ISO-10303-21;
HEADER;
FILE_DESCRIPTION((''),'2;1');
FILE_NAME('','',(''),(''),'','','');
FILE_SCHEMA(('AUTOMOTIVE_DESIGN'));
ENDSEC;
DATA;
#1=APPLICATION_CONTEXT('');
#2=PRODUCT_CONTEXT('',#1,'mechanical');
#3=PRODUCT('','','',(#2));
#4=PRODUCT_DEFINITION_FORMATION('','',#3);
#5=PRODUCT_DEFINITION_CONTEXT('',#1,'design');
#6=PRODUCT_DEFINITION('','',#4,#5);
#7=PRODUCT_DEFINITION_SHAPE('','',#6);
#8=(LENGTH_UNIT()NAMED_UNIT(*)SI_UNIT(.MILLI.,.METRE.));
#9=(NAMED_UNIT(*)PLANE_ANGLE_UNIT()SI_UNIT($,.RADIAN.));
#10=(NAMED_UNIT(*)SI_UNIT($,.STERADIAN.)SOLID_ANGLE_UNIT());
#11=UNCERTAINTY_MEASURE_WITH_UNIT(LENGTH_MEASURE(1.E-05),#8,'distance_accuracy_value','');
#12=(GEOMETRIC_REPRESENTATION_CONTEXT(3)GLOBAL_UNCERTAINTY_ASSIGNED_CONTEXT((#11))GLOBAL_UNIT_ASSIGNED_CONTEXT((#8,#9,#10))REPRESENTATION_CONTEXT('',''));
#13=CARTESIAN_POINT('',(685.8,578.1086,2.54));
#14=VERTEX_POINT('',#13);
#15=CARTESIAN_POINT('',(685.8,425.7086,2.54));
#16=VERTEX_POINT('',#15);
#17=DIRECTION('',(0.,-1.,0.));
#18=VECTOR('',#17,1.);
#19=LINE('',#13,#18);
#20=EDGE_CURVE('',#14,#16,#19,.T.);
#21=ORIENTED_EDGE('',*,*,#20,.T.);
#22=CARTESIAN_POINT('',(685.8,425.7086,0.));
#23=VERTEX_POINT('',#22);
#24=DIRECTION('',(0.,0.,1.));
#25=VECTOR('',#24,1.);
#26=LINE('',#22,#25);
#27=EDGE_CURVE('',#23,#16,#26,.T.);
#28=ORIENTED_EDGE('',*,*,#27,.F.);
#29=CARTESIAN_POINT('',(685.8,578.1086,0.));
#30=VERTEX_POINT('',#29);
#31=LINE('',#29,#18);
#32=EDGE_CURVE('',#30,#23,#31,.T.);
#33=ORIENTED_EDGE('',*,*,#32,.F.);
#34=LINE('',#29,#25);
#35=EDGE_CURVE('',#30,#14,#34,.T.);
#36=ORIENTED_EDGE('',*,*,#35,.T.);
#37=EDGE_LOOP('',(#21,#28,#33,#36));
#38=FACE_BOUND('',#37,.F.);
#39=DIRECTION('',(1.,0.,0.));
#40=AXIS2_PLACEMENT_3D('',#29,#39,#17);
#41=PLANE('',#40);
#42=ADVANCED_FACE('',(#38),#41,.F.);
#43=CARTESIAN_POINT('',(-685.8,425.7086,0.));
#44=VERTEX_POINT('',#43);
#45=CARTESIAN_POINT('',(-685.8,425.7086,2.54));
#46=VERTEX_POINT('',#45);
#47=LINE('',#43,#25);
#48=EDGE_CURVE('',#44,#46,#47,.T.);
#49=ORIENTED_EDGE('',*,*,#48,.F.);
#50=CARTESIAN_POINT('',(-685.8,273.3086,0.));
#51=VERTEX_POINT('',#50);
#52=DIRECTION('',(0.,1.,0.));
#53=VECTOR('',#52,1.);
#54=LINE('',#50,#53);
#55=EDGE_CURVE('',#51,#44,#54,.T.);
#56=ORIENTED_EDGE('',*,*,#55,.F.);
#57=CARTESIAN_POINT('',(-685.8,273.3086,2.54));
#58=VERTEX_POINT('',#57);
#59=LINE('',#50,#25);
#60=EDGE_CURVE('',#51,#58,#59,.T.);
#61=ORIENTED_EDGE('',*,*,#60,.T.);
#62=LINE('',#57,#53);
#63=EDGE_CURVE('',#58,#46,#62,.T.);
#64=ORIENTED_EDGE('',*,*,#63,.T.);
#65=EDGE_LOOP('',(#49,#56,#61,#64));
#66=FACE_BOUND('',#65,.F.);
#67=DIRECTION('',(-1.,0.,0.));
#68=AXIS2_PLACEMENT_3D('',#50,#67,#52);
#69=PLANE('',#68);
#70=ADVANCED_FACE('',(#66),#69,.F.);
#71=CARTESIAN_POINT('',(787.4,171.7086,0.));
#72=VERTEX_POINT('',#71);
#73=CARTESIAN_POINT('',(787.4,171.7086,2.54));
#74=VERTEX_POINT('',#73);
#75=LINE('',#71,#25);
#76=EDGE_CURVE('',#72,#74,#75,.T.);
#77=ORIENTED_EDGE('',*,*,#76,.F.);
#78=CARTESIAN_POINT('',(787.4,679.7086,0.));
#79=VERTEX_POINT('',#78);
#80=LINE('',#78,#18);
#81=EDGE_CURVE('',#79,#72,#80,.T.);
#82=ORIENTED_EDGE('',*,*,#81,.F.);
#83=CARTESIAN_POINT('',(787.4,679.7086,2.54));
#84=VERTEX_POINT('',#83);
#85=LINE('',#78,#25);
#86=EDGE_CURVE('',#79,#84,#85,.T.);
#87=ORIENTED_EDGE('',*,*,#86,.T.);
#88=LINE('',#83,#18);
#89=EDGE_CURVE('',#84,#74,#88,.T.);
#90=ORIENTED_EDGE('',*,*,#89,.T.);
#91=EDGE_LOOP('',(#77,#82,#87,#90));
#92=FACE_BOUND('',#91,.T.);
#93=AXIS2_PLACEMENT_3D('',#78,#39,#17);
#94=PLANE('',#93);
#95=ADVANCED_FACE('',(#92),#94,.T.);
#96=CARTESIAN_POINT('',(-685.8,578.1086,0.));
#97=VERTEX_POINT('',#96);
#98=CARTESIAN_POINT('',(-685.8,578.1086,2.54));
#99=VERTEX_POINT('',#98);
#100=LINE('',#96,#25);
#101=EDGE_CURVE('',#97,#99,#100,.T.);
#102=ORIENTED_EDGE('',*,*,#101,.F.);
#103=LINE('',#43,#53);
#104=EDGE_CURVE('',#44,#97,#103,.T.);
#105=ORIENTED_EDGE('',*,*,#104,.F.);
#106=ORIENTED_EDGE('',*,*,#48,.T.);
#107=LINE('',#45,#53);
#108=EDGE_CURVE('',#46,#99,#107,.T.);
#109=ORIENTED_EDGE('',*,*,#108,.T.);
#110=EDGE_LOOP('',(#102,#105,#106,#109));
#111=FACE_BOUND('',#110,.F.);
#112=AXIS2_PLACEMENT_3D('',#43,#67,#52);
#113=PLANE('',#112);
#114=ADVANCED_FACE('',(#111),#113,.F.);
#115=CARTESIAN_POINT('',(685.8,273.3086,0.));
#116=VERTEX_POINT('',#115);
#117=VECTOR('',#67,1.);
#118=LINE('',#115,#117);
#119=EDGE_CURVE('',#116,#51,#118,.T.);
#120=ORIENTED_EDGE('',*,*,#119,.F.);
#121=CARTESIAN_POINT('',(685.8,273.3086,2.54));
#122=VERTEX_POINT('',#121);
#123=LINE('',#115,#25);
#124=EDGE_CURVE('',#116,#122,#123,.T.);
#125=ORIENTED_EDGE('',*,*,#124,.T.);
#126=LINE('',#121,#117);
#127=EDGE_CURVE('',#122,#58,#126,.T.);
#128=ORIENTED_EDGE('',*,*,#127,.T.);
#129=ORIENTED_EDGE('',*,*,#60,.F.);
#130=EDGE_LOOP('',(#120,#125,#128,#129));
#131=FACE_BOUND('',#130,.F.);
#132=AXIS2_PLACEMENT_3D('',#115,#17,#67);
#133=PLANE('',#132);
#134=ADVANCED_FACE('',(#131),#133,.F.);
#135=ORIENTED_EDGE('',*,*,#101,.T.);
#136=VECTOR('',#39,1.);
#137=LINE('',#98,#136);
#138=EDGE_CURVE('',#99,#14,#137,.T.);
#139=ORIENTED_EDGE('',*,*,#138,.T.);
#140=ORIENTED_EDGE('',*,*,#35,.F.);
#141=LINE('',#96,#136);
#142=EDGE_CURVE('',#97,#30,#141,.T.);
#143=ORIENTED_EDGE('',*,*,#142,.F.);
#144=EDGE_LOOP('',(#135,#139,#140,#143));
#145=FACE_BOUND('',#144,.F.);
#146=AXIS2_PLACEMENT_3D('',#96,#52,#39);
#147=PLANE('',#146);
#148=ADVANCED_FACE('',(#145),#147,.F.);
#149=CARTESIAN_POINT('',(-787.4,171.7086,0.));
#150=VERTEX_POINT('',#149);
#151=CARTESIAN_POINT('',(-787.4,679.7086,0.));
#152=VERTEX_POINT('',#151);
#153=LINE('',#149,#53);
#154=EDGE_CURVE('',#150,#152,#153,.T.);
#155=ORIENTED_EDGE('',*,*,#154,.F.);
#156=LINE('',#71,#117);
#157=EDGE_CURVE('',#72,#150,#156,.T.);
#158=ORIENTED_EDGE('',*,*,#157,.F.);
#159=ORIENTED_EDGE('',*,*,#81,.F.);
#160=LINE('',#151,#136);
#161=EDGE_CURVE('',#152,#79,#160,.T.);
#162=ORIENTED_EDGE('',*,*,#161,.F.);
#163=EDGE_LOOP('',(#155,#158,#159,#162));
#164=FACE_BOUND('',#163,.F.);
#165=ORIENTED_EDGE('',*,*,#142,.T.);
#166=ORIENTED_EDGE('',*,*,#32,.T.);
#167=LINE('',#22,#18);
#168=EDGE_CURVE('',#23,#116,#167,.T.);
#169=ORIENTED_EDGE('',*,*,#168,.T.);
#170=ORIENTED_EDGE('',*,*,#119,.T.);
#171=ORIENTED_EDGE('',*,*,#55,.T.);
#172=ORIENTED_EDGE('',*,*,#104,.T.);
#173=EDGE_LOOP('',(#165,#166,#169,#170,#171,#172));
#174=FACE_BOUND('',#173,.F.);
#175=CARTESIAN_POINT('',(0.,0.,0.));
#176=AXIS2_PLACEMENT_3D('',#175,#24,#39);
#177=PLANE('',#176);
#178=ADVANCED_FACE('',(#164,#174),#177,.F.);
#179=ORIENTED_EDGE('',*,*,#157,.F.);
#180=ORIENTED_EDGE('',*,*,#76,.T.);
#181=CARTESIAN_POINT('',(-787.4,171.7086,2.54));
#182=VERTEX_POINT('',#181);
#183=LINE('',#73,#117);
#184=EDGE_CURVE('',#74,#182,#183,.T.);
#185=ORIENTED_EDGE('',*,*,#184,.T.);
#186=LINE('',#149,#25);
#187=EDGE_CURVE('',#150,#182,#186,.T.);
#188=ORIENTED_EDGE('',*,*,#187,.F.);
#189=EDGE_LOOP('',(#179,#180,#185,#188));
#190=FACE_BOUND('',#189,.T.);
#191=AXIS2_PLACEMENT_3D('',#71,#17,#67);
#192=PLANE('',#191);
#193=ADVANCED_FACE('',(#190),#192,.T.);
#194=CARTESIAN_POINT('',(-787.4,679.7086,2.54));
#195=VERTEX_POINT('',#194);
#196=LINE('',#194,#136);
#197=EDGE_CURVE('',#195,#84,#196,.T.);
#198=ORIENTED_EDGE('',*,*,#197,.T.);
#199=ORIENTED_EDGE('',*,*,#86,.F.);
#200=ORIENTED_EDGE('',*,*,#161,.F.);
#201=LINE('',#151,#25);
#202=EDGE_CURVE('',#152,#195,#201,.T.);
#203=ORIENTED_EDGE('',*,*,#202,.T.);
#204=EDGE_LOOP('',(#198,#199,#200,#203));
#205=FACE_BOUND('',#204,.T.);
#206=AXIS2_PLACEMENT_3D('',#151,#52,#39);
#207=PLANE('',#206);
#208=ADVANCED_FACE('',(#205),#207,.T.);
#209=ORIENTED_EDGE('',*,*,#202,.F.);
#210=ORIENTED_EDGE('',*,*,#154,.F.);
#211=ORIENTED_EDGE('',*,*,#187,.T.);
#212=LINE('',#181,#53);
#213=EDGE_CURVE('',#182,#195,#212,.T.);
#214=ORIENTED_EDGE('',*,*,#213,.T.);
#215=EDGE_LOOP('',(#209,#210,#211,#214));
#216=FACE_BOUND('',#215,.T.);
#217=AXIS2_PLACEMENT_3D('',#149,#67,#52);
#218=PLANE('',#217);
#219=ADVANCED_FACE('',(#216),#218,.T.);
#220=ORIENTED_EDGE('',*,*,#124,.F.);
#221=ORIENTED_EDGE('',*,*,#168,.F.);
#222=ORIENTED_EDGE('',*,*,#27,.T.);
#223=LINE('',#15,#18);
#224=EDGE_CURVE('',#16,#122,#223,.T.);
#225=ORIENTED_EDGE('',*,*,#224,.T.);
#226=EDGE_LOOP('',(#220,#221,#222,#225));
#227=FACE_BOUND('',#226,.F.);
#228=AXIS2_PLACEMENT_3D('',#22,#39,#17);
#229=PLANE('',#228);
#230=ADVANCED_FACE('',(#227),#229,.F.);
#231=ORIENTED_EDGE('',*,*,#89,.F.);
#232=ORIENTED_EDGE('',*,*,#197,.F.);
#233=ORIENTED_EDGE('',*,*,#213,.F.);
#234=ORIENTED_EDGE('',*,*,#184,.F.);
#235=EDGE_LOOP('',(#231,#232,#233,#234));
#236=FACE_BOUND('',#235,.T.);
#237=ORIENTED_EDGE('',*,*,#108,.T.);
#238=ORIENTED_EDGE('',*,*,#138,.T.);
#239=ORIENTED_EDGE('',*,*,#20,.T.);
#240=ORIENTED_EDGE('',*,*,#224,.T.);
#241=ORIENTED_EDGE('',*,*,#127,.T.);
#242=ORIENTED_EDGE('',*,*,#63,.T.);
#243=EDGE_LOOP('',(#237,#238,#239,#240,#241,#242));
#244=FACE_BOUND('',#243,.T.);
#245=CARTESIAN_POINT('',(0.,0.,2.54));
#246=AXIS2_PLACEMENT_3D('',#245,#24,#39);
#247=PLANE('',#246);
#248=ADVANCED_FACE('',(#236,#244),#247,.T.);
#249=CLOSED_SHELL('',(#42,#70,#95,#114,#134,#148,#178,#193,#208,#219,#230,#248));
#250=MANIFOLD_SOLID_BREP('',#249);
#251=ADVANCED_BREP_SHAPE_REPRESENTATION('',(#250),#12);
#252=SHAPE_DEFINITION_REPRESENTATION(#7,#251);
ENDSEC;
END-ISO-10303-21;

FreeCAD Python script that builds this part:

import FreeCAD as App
import Part
import Sketcher
from FreeCAD import Vector
Q = App.Units.Quantity

doc = App.newDocument("Part")
body = doc.addObject("PartDesign::Body", "Body")

# Sketch on XY plane
sketch1 = body.newObject("Sketcher::SketchObject", "Sketch")
sketch1.AttachmentSupport = (doc.getObject("XY_Plane"), [""])
sketch1.MapMode = "FlatFace"
sketch1.addGeometry([
    Part.LineSegment(Vector(-787, 172, 0), Vector(787, 172, 0)),  # 0
    Part.LineSegment(Vector(787, 172, 0), Vector(787, 680, 0)),  # 1
    Part.LineSegment(Vector(787, 680, 0), Vector(-787, 680, 0)),  # 2
    Part.LineSegment(Vector(-787, 680, 0), Vector(-787, 172, 0)),  # 3
    Part.LineSegment(Vector(686, 578, 0), Vector(686, 273, 0)),  # 4
    Part.LineSegment(Vector(686, 273, 0), Vector(-686, 273, 0)),  # 5
    Part.LineSegment(Vector(-686, 273, 0), Vector(-686, 578, 0)),  # 6
    Part.LineSegment(Vector(-686, 578, 0), Vector(686, 578, 0)),  # 7
], False)
sketch1.addConstraint([
    Sketcher.Constraint("Coincident", 0, 2, 1, 1),
    Sketcher.Constraint("Coincident", 1, 2, 2, 1),
    Sketcher.Constraint("Coincident", 2, 2, 3, 1),
    Sketcher.Constraint("Coincident", 3, 2, 0, 1),
    Sketcher.Constraint("Coincident", 4, 2, 5, 1),
    Sketcher.Constraint("Coincident", 5, 2, 6, 1),
    Sketcher.Constraint("Coincident", 6, 2, 7, 1),
    Sketcher.Constraint("Coincident", 7, 2, 4, 1),
    Sketcher.Constraint("Horizontal", 0),
    Sketcher.Constraint("Vertical", 1),
    Sketcher.Constraint("Horizontal", 2),
    Sketcher.Constraint("Vertical", 3),
    Sketcher.Constraint("Vertical", 4),
    Sketcher.Constraint("Horizontal", 5),
    Sketcher.Constraint("Vertical", 6),
    Sketcher.Constraint("Horizontal", 7),
    Sketcher.Constraint("DistanceX", 4, 2, 0, 2, Q("4 in")),
    Sketcher.Constraint("DistanceY", 0, 2, 4, 2, Q("4 in")),
    Sketcher.Constraint("DistanceX", 3, 2, 5, 2, Q("4 in")),
    Sketcher.Constraint("DistanceY", 6, 2, 2, 2, Q("4 in")),
    Sketcher.Constraint("DistanceX", 0, 1, 0, 2, Q("62 in")),
    Sketcher.Constraint("DistanceY", 1, 1, 1, 2, Q("20 in")),
    Sketcher.Constraint("DistanceX", -1, 1, 0, 2, Q("31 in")),
    Sketcher.Constraint("DistanceY", -1, 1, 0, 2, Q("171.7086 mm")),
])
pad1 = body.newObject("PartDesign::Pad", "Pad")
pad1.Profile = sketch1
pad1.Length = Q("0.1 in")

doc.recompute()
